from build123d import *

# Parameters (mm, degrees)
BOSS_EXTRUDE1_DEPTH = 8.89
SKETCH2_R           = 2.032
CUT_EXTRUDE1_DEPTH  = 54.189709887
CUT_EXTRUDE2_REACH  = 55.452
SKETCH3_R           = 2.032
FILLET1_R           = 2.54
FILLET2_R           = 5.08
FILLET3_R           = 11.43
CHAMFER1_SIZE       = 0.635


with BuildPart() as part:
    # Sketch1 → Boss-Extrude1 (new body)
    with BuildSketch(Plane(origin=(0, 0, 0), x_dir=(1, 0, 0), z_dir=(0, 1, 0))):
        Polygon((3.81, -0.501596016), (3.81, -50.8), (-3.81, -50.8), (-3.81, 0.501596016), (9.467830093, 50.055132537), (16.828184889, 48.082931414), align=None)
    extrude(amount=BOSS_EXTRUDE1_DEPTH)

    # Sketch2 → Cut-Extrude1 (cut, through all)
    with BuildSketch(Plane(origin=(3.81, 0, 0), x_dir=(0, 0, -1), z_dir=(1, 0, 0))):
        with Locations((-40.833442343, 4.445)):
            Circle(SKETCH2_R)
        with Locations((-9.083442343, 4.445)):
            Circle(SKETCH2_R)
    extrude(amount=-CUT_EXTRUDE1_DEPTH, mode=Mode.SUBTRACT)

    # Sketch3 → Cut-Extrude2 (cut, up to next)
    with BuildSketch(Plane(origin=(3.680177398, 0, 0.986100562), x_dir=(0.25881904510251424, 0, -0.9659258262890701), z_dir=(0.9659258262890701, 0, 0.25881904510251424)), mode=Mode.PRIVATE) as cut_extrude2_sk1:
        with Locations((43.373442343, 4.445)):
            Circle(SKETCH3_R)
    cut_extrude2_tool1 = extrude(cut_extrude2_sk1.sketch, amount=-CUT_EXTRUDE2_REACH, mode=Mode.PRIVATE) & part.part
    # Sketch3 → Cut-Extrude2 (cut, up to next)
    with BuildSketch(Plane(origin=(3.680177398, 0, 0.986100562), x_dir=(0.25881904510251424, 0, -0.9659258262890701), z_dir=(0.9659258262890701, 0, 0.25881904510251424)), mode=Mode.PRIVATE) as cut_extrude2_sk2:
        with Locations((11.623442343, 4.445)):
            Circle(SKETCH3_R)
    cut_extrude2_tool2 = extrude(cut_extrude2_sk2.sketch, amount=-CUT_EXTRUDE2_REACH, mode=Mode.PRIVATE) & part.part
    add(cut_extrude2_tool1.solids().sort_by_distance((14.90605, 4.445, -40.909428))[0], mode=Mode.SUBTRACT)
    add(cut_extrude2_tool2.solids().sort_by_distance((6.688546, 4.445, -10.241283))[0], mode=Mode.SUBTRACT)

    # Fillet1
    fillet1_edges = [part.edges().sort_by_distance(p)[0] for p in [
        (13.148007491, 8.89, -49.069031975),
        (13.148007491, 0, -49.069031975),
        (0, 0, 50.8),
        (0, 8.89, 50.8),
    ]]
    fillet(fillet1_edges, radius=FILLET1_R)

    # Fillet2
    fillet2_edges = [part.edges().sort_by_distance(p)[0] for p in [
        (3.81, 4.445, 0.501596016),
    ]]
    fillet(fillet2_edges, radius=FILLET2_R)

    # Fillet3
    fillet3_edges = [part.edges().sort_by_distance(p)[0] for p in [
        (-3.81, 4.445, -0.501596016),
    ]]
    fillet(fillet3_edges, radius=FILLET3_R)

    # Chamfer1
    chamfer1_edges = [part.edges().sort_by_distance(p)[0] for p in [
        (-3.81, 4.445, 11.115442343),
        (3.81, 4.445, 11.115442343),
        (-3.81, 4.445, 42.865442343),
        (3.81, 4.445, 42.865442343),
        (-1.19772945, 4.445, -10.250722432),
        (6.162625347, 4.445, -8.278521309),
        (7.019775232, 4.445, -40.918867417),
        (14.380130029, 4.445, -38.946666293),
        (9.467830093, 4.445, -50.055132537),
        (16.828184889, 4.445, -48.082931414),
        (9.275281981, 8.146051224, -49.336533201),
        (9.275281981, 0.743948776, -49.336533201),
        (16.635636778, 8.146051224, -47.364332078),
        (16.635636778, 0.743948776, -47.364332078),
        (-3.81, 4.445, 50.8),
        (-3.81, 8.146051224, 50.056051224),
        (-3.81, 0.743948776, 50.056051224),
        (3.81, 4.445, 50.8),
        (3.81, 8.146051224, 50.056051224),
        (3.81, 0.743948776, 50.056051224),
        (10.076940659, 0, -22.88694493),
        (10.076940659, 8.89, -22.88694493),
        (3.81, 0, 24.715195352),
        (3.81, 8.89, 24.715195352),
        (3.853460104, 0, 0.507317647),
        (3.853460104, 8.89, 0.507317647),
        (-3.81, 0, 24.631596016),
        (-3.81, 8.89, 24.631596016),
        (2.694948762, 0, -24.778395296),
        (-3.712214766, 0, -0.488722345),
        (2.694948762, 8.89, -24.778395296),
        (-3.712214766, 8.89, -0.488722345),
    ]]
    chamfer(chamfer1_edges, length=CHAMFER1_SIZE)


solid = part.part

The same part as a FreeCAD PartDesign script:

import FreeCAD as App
import Part
import Sketcher
Q = App.Units.Quantity


def edges_at(feature, points):
    """Names of the edges that pass closest to the given points."""
    edges = feature.Shape.Edges
    near = lambda p: min(range(len(edges)), key=lambda i: edges[i].distToShape(Part.Vertex(*p))[0])
    return sorted({f"Edge{near(p) + 1}" for p in points})


def add_polygon(sketch, points):
    """Adds a closed chain of lines whose ends are joined by coincident constraints."""
    first, n = sketch.GeometryCount, len(points)
    for a, b in zip(points, points[1:] + points[:1]):
        sketch.addGeometry(Part.LineSegment(App.Vector(*a, 0), App.Vector(*b, 0)), False)
    for i in range(n):
        sketch.addConstraint(Sketcher.Constraint("Coincident", first + i, 2, first + (i + 1) % n, 1))

doc = App.newDocument("Part")
body = doc.addObject("PartDesign::Body", "Body")

sketch1 = doc.addObject("Sketcher::SketchObject", "Sketch")
body.addObject(sketch1)
sketch1.AttachmentSupport = (doc.XZ_Plane, [""])
sketch1.MapMode = "FlatFace"
add_polygon(sketch1, [(4, 51), (4, 1), (17, -48), (9, -50), (-4, -1), (-4, 51)])
sketch1.addConstraint(Sketcher.Constraint("Vertical", 0))
sketch1.addConstraint(Sketcher.Constraint("Vertical", 4))
sketch1.addConstraint(Sketcher.Constraint("Horizontal", 5))
sketch1.addConstraint(Sketcher.Constraint("Symmetric", 0, 2, 3, 2, -1, 1))
sketch1.addConstraint(Sketcher.Constraint("Perpendicular", 1, 2))
sketch1.addConstraint(Sketcher.Constraint("Perpendicular", 2, 3))
sketch1.addConstraint(Sketcher.Constraint("DistanceX", 5, 1, 5, 2, Q("0.3 in")))
sketch1.addConstraint(Sketcher.Constraint("DistanceY", -1, 1, 4, 2, Q("2 in")))
sketch1.addConstraint(Sketcher.Constraint("Angle", 1, Q("-75 deg")))
sketch1.addConstraint(Sketcher.Constraint("Distance", 2, Q("0.3 in")))
sketch1.addConstraint(Sketcher.Constraint("DistanceY", 1, 2, -1, 1, Q("48.082931 mm")))
pad1 = doc.addObject("PartDesign::Pad", "Pad")
body.addObject(pad1)
pad1.Profile = sketch1
pad1.Length = Q("0.35 in")
pad1.Reversed = True

sketch2 = doc.addObject("Sketcher::SketchObject", "Sketch001")
body.addObject(sketch2)
sketch2.AttachmentSupport = (doc.YZ_Plane, [""])
sketch2.MapMode = "FlatFace"
sketch2.AttachmentOffset = App.Placement(App.Vector(0, 0, 0.15 * 25.4), App.Rotation())
sketch2.addGeometry(Part.Circle(App.Vector(4.4, 40.8, 0), App.Vector(0, 0, 1), 2), False)
sketch2.addGeometry(Part.Circle(App.Vector(4.4, 9.1, 0), App.Vector(0, 0, 1), 2), False)
sketch2.addConstraint(Sketcher.Constraint("Equal", 0, 1))
sketch2.addConstraint(Sketcher.Constraint("Vertical", 0, 3, 1, 3))
sketch2.addConstraint(Sketcher.Constraint("Diameter", 0, Q("0.16 in")))
sketch2.addConstraint(Sketcher.Constraint("DistanceY", 1, 3, 0, 3, Q("1.25 in")))
sketch2.addConstraint(Sketcher.Constraint("DistanceX", -1, 1, 0, 3, Q("0.175 in")))
sketch2.addConstraint(Sketcher.Constraint("DistanceY", -1, 1, 0, 3, Q("40.833442 mm")))
pocket1 = doc.addObject("PartDesign::Pocket", "Pocket")
body.addObject(pocket1)
pocket1.Profile = sketch2
pocket1.Type = "ThroughAll"

sketch3 = doc.addObject("Sketcher::SketchObject", "Sketch002")
body.addObject(sketch3)
sketch3.Placement = App.Placement(App.Vector(3.680177, 0, 0.986101), App.Rotation(App.Vector(0.258819045, 0, -0.965925826), App.Vector(0, 0.999999999, 0), App.Vector(0.965925826, 0, 0.258819045), "ZXY"))
sketch3.addGeometry(Part.Circle(App.Vector(43.4, 4.4, 0), App.Vector(0, 0, 1), 2), False)
sketch3.addConstraint(Sketcher.Constraint("Diameter", 0, Q("0.16 in")))
sketch3.addConstraint(Sketcher.Constraint("DistanceY", -1, 1, 0, 3, Q("0.175 in")))
sketch3.addConstraint(Sketcher.Constraint("DistanceX", -1, 1, 0, 3, Q("43.373442 mm")))
pocket2 = doc.addObject("PartDesign::Pocket", "Pocket001")
body.addObject(pocket2)
pocket2.Profile = sketch3
pocket2.Type = "UpToFirst"

sketch4 = doc.addObject("Sketcher::SketchObject", "Sketch003")
body.addObject(sketch4)
sketch4.Placement = App.Placement(App.Vector(3.680177, 0, 0.986101), App.Rotation(App.Vector(0.258819045, 0, -0.965925826), App.Vector(0, 0.999999999, 0), App.Vector(0.965925826, 0, 0.258819045), "ZXY"))
sketch4.addGeometry(Part.Circle(App.Vector(11.6, 4.4, 0), App.Vector(0, 0, 1), 2), False)
sketch4.addConstraint(Sketcher.Constraint("Diameter", 0, Q("0.16 in")))
sketch4.addConstraint(Sketcher.Constraint("DistanceY", -1, 1, 0, 3, Q("0.175 in")))
sketch4.addConstraint(Sketcher.Constraint("DistanceX", -1, 1, 0, 3, Q("11.623442 mm")))
pocket3 = doc.addObject("PartDesign::Pocket", "Pocket002")
body.addObject(pocket3)
pocket3.Profile = sketch4
pocket3.Type = "UpToFirst"
doc.recompute()

fillet = doc.addObject("PartDesign::Fillet", "Fillet")
body.addObject(fillet)
fillet.Base = (pocket3, edges_at(pocket3, [
    (13.148, 8.89, -49.069),
    (13.148, 0, -49.069),
    (0, 0, 50.8),
    (0, 8.89, 50.8),
]))
fillet.Radius = Q("0.1 in")
doc.recompute()

fillet2 = doc.addObject("PartDesign::Fillet", "Fillet001")
body.addObject(fillet2)
fillet2.Base = (fillet, edges_at(fillet, [(3.81, 4.445, 0.502)]))
fillet2.Radius = Q("0.2 in")
doc.recompute()

fillet3 = doc.addObject("PartDesign::Fillet", "Fillet002")
body.addObject(fillet3)
fillet3.Base = (fillet2, edges_at(fillet2, [(-3.81, 4.445, -0.502)]))
fillet3.Radius = Q("0.45 in")
doc.recompute()

chamfer = doc.addObject("PartDesign::Chamfer", "Chamfer")
body.addObject(chamfer)
chamfer.Base = (fillet3, edges_at(fillet3, [
    (-3.81, 4.445, 11.115),
    (3.81, 4.445, 11.115),
    (-3.81, 4.445, 42.865),
    (3.81, 4.445, 42.865),
    (-1.198, 4.445, -10.251),
    (6.163, 4.445, -8.279),
    (7.02, 4.445, -40.919),
    (14.38, 4.445, -38.947),
    (9.468, 4.445, -50.055),
    (16.828, 4.445, -48.083),
    (9.275, 8.146, -49.337),
    (9.275, 0.744, -49.337),
    (16.636, 8.146, -47.364),
    (16.636, 0.744, -47.364),
    (-3.81, 4.445, 50.8),
    (-3.81, 8.146, 50.056),
    (-3.81, 0.744, 50.056),
    (3.81, 4.445, 50.8),
    (3.81, 8.146, 50.056),
    (3.81, 0.744, 50.056),
    (10.077, 0, -22.887),
    (10.077, 8.89, -22.887),
    (3.81, 0, 24.715),
    (3.81, 8.89, 24.715),
    (3.853, 0, 0.507),
    (3.853, 8.89, 0.507),
    (-3.81, 0, 24.632),
    (-3.81, 8.89, 24.632),
    (2.695, 0, -24.778),
    (-3.712, 0, -0.489),
    (2.695, 8.89, -24.778),
    (-3.712, 8.89, -0.489),
]))
chamfer.Size = Q("0.025 in")

doc.recompute()
